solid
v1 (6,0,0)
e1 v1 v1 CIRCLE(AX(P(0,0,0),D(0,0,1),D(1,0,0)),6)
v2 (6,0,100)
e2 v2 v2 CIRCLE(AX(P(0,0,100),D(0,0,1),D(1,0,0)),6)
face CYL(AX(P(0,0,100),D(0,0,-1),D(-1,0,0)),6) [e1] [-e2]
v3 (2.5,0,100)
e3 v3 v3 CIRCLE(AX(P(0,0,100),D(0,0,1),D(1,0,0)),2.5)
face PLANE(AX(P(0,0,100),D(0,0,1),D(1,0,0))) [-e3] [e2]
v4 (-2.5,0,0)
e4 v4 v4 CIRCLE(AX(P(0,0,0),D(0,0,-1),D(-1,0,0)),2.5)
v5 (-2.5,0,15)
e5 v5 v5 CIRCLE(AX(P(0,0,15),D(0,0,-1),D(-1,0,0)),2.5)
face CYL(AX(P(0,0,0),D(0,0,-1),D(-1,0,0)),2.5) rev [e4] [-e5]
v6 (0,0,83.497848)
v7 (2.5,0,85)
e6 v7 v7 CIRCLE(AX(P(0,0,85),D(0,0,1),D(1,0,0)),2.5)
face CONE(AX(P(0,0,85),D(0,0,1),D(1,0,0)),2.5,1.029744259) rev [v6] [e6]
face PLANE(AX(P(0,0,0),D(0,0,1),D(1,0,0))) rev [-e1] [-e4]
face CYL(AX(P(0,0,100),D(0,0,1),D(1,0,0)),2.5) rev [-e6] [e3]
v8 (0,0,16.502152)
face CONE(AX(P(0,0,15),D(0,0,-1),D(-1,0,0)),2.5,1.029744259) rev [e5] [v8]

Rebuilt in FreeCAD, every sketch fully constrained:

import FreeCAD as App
import Part
import Sketcher

doc = App.newDocument("Part")
body = doc.addObject("PartDesign::Body", "Body")

# Sketch on XY plane
sketch1 = body.newObject("Sketcher::SketchObject", "Sketch")
sketch1.AttachmentSupport = (doc.getObject("XY_Plane"), [""])
sketch1.MapMode = "FlatFace"
sketch1.addGeometry(Part.Circle(App.Vector(0, 0, 0), App.Vector(0, 0, 1), 6), False)
sketch1.addConstraint([
    Sketcher.Constraint("Coincident", 0, 3, -1, 1),
    Sketcher.Constraint("Diameter", 0, 12.0),
])
pad1 = body.newObject("PartDesign::Pad", "Pad")
pad1.Profile = sketch1
pad1.Length = 100

# Sketch on XY plane
sketch2 = body.newObject("Sketcher::SketchObject", "Sketch001")
sketch2.AttachmentSupport = (doc.getObject("XY_Plane"), [""])
sketch2.MapMode = "FlatFace"
sketch2.addGeometry(Part.Circle(App.Vector(0, 0, 0), App.Vector(0, 0, 1), 2.5), False)
sketch2.addConstraint([
    Sketcher.Constraint("Coincident", 0, 3, -1, 1),
    Sketcher.Constraint("Diameter", 0, 5.0),
])
doc.recompute()
hole = body.newObject("PartDesign::Hole", "Hole")
hole.Profile = sketch2
hole.ThreadType = "None"
hole.Diameter = 5
hole.DepthType = "Dimension"
hole.Depth = 15
hole.DrillPoint = "Angled"
hole.DrillPointAngle = 118
hole.Reversed = True

# Sketch on XY plane
sketch3 = body.newObject("Sketcher::SketchObject", "Sketch002")
sketch3.AttachmentSupport = (doc.getObject("XY_Plane"), [""])
sketch3.MapMode = "FlatFace"
sketch3.AttachmentOffset = App.Placement(App.Vector(0, 0, 100), App.Rotation())
sketch3.addGeometry(Part.Circle(App.Vector(0, 0, 0), App.Vector(0, 0, 1), 2.5), False)
sketch3.addConstraint([
    Sketcher.Constraint("Coincident", 0, 3, -1, 1),
    Sketcher.Constraint("Diameter", 0, 5.0),
])
doc.recompute()
hole2 = body.newObject("PartDesign::Hole", "Hole001")
hole2.Profile = sketch3
hole2.ThreadType = "None"
hole2.Diameter = 5
hole2.DepthType = "Dimension"
hole2.Depth = 15
hole2.DrillPoint = "Angled"
hole2.DrillPointAngle = 118

doc.recompute()
